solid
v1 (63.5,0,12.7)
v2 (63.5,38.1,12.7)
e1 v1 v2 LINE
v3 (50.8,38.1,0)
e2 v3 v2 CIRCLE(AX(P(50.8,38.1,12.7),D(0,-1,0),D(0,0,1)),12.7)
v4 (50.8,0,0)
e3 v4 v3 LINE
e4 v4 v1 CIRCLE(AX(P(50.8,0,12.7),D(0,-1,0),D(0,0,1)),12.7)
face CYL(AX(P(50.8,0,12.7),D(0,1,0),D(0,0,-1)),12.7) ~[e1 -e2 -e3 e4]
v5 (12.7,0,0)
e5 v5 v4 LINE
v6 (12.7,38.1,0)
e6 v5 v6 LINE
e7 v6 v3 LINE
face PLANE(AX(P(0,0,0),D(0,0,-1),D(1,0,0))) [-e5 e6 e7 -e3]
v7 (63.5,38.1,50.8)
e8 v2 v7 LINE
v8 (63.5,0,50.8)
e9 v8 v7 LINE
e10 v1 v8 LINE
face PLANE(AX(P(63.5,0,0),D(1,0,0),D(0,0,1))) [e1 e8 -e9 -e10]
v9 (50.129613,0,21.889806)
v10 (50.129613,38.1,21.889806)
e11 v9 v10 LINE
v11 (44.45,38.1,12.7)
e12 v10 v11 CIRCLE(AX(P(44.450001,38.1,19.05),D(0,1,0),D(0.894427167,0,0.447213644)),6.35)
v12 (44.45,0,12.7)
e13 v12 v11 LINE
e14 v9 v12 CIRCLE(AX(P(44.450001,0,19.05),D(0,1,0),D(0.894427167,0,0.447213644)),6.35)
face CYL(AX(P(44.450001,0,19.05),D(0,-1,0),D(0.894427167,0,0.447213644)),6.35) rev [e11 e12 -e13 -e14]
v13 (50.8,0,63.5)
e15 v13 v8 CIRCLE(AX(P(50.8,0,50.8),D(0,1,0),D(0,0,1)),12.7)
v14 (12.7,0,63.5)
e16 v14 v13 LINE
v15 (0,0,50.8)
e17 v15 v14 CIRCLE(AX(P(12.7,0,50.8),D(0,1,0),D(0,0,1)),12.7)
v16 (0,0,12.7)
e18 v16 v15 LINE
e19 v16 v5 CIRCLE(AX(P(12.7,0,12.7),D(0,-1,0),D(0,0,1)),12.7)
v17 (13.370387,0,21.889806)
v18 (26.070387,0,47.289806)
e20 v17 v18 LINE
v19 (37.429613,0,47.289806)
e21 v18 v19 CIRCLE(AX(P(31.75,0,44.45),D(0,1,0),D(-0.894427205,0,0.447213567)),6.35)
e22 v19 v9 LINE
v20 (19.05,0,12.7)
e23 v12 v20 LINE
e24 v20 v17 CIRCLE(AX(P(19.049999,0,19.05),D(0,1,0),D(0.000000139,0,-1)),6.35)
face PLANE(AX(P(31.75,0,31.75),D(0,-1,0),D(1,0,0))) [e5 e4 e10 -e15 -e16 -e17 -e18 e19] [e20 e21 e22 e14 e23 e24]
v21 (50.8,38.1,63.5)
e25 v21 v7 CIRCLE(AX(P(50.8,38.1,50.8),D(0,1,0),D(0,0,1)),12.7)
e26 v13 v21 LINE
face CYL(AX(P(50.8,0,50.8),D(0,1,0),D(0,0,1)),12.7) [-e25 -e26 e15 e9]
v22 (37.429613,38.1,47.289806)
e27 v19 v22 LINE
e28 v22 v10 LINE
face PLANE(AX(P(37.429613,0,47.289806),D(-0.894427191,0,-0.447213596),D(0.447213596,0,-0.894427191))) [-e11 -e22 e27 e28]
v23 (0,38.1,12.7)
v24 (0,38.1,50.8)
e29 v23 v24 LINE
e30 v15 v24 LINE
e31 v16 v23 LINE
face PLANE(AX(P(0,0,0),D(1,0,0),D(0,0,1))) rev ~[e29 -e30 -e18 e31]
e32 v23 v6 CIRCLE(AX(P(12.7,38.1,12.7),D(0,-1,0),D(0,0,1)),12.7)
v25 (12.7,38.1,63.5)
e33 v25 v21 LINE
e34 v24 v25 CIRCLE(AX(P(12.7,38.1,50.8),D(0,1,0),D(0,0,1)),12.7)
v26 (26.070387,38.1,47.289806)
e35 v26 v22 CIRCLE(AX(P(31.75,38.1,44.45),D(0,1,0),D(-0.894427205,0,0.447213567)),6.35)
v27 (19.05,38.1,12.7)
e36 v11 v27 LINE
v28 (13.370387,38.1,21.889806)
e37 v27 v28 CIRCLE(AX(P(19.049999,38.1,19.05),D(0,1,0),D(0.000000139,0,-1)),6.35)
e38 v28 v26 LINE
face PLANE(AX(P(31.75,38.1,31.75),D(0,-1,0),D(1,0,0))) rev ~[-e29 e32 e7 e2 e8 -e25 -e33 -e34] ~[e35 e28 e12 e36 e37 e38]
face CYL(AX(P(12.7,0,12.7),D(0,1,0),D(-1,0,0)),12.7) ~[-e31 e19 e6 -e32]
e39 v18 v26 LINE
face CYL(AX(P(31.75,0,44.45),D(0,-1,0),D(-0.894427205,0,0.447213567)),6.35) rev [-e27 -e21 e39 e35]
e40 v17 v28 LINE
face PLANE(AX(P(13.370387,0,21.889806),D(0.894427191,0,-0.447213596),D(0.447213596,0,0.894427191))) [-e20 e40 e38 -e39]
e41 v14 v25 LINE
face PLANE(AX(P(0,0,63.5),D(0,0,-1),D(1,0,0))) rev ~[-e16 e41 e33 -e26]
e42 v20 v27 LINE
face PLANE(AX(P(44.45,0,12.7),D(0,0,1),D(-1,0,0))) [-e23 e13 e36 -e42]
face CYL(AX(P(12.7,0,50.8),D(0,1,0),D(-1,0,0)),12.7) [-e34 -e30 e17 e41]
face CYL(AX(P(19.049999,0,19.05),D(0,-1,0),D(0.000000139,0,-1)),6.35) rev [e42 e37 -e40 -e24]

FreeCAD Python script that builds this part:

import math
import FreeCAD as App
import Part
import Sketcher

V = App.Vector
Q = App.Units.Quantity


def edges_at(feature, points):
    """Names of the edges that pass closest to the given points."""
    edges = feature.Shape.Edges
    near = lambda p: min(range(len(edges)), key=lambda i: edges[i].distToShape(Part.Vertex(*p))[0])
    return sorted({f"Edge{near(p) + 1}" for p in points})

doc = App.newDocument("Part")
params = doc.addObject("Spreadsheet::Sheet", "Params")
for row, (alias, value) in enumerate([
    ("sketch1_width", "1 in"),
    ("sketch1_radius", "0.25 in"),
    ("sketch1_width2", "2.5 in"),
    ("pad1_length", "1.5 in"),
    ("fillet_radius", "0.5 in"),
], start=1):
    params.set(f"A{row}", alias)
    params.set(f"B{row}", "=" + value)
    params.setAlias(f"B{row}", alias)

body = doc.addObject("PartDesign::Body", "Body")

# Sketch on XZ plane
sketch1 = body.newObject("Sketcher::SketchObject", "Sketch")
sketch1.AttachmentSupport = (doc.getObject("XZ_Plane"), [""])
sketch1.MapMode = "FlatFace"
sketch1.addGeometry(Part.LineSegment(V(0, 64, 0), V(0, 0, 0)), False)
sketch1.addGeometry(Part.LineSegment(V(0, 0, 0), V(64, 0, 0)), False)
sketch1.addGeometry(Part.LineSegment(V(64, 0, 0), V(64, 64, 0)), False)
sketch1.addGeometry(Part.LineSegment(V(64, 64, 0), V(0, 64, 0)), False)
sketch1.addGeometry(Part.LineSegment(V(44, 13, 0), V(19, 13, 0)), False)
sketch1.addGeometry(Part.ArcOfCircle(Part.Circle(V(19, 19, 0), V(0, 0, 1), 6), math.radians(153), math.radians(270)), False)
sketch1.addGeometry(Part.LineSegment(V(13, 22, 0), V(26, 47, 0)), False)
sketch1.addGeometry(Part.ArcOfCircle(Part.Circle(V(32, 44, 0), V(0, 0, 1), 6), math.radians(27), math.radians(153)), False)
sketch1.addGeometry(Part.LineSegment(V(37, 47, 0), V(50, 22, 0)), False)
sketch1.addGeometry(Part.ArcOfCircle(Part.Circle(V(44, 19, 0), V(0, 0, 1), 6), math.radians(-90), math.radians(27)), False)
sketch1.addConstraint(Sketcher.Constraint("Coincident", 0, 2, 1, 1))
sketch1.addConstraint(Sketcher.Constraint("Coincident", 1, 2, 2, 1))
sketch1.addConstraint(Sketcher.Constraint("Coincident", 2, 2, 3, 1))
sketch1.addConstraint(Sketcher.Constraint("Coincident", 3, 2, 0, 1))
sketch1.addConstraint(Sketcher.Constraint("Tangent", 4, 2, 5, 2))
sketch1.addConstraint(Sketcher.Constraint("Tangent", 5, 1, 6, 1))
sketch1.addConstraint(Sketcher.Constraint("Tangent", 6, 2, 7, 2))
sketch1.addConstraint(Sketcher.Constraint("Tangent", 7, 1, 8, 1))
sketch1.addConstraint(Sketcher.Constraint("Tangent", 8, 2, 9, 2))
sketch1.addConstraint(Sketcher.Constraint("Tangent", 9, 1, 4, 1))
sketch1.addConstraint(Sketcher.Constraint("Vertical", 0))
sketch1.addConstraint(Sketcher.Constraint("Horizontal", 1))
sketch1.addConstraint(Sketcher.Constraint("Vertical", 2))
sketch1.addConstraint(Sketcher.Constraint("Horizontal", 3))
sketch1.addConstraint(Sketcher.Constraint("Horizontal", 4))
sketch1.addConstraint(Sketcher.Constraint("Coincident", 0, 2, -1, 1))
sketch1.addConstraint(Sketcher.Constraint("Equal", 5, 7))
sketch1.addConstraint(Sketcher.Constraint("Equal", 7, 9))
sketch1.addConstraint(Sketcher.Constraint("Horizontal", 6, 2, 7, 1))
sketch1.addConstraint(Sketcher.Constraint("Equal", 3, 0))
sketch1.addConstraint(Sketcher.Constraint("DistanceX", 4, 2, 4, 1, Q("1 in")))
sketch1.addConstraint(Sketcher.Constraint("Radius", 5, Q("0.25 in")))
sketch1.addConstraint(Sketcher.Constraint("DistanceX", 1, 1, 1, 2, Q("2.5 in")))
sketch1.addConstraint(Sketcher.Constraint("DistanceY", 5, 3, 7, 3, Q("1 in")))
sketch1.addConstraint(Sketcher.Constraint("DistanceY", -1, 1, 4, 2, Q("0.5 in")))
sketch1.addConstraint(Sketcher.Constraint("DistanceX", -1, 1, 5, 3, Q("0.75 in")))
sketch1.setExpression("Constraints[20]", "Params.sketch1_width")
sketch1.setExpression("Constraints[21]", "Params.sketch1_radius")
sketch1.setExpression("Constraints[22]", "Params.sketch1_width2")
pad1 = body.newObject("PartDesign::Pad", "Pad")
pad1.Profile = sketch1
pad1.setExpression("Length", "Params.pad1_length")
pad1.Reversed = True
doc.recompute()

fillet = body.newObject("PartDesign::Fillet", "Fillet")
fillet.Base = (pad1, edges_at(pad1, [
    (63.5, 19.05, 63.5),
    (63.5, 19.05, 0),
    (0, 19.05, 63.5),
    (0, 19.05, 0),
]))
fillet.setExpression("Radius", "Params.fillet_radius")

doc.recompute()
